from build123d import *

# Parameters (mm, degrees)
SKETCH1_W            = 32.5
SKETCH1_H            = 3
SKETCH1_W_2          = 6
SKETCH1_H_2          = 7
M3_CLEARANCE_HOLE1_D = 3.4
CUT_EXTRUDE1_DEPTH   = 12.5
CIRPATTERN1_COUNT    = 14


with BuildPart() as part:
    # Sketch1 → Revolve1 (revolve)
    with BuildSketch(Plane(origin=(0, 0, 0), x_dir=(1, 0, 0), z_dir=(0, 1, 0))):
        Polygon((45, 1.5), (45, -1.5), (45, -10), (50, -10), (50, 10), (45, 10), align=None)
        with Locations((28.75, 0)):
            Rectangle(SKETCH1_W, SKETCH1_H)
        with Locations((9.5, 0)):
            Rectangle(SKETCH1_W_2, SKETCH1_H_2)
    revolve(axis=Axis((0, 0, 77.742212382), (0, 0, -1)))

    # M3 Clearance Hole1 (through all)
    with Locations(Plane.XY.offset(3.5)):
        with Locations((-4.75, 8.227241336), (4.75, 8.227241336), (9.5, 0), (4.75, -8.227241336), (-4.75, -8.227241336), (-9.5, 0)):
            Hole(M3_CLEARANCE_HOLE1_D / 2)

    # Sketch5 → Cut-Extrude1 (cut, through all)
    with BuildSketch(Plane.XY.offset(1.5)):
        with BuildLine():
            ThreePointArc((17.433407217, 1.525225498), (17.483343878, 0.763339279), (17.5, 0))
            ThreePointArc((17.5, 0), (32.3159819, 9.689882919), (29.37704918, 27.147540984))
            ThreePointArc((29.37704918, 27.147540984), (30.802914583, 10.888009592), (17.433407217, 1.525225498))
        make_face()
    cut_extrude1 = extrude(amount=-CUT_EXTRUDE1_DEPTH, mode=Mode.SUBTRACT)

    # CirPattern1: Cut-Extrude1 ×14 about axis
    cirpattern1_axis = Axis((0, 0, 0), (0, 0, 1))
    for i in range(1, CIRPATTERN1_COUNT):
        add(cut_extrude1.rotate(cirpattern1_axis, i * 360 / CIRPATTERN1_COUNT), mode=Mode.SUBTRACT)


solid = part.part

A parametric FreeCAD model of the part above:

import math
import FreeCAD as App
import Part
import Sketcher
from FreeCAD import Vector

doc = App.newDocument("Part")
params = doc.addObject("Spreadsheet::Sheet", "Params")
for row, (alias, value) in enumerate([
    ("sketch1_width", "5 mm"),
    ("sketch1_width2", "6 mm"),
    ("sketch1_height", "20 mm"),
    ("sketch1_height2", "2 mm"),
    ("sketch1_height3", "7 mm"),
    ("revolution_angle", "360 deg"),
    ("sketch2_diameter", "3.4 mm"),
    ("hole_diameter", "3.4 mm"),
    ("sketch3_radius", "17.5 mm"),
], start=1):
    params.set(f"A{row}", alias)
    params.set(f"B{row}", "=" + value)
    params.setAlias(f"B{row}", alias)

body = doc.addObject("PartDesign::Body", "Body")

sketch1 = doc.addObject("Sketcher::SketchObject", "Sketch")
body.addObject(sketch1)
sketch1.AttachmentSupport = (doc.XZ_Plane, [""])
sketch1.MapMode = "FlatFace"
sketch1.addGeometry(Part.LineSegment(Vector(45, 10, 0), Vector(50, 10, 0)), False)
sketch1.addGeometry(Part.LineSegment(Vector(50, 10, 0), Vector(50, -10, 0)), False)
sketch1.addGeometry(Part.LineSegment(Vector(50, -10, 0), Vector(45, -10, 0)), False)
sketch1.addGeometry(Part.LineSegment(Vector(45, -10, 0), Vector(45, -1.5, 0)), False)
sketch1.addGeometry(Part.LineSegment(Vector(45, -1.5, 0), Vector(12.5, -1.5, 0)), False)
sketch1.addGeometry(Part.LineSegment(Vector(12.5, -1.5, 0), Vector(12.5, -3.5, 0)), False)
sketch1.addGeometry(Part.LineSegment(Vector(12.5, -3.5, 0), Vector(6.5, -3.5, 0)), False)
sketch1.addGeometry(Part.LineSegment(Vector(6.5, -3.5, 0), Vector(6.5, 3.5, 0)), False)
sketch1.addGeometry(Part.LineSegment(Vector(6.5, 3.5, 0), Vector(12.5, 3.5, 0)), False)
sketch1.addGeometry(Part.LineSegment(Vector(12.5, 3.5, 0), Vector(12.5, 1.5, 0)), False)
sketch1.addGeometry(Part.LineSegment(Vector(12.5, 1.5, 0), Vector(45, 1.5, 0)), False)
sketch1.addGeometry(Part.LineSegment(Vector(45, 1.5, 0), Vector(45, 10, 0)), False)
sketch1.addConstraint(Sketcher.Constraint("Coincident", 0, 2, 1, 1))
sketch1.addConstraint(Sketcher.Constraint("Coincident", 1, 2, 2, 1))
sketch1.addConstraint(Sketcher.Constraint("Coincident", 2, 2, 3, 1))
sketch1.addConstraint(Sketcher.Constraint("Coincident", 3, 2, 4, 1))
sketch1.addConstraint(Sketcher.Constraint("Coincident", 4, 2, 5, 1))
sketch1.addConstraint(Sketcher.Constraint("Coincident", 5, 2, 6, 1))
sketch1.addConstraint(Sketcher.Constraint("Coincident", 6, 2, 7, 1))
sketch1.addConstraint(Sketcher.Constraint("Coincident", 7, 2, 8, 1))
sketch1.addConstraint(Sketcher.Constraint("Coincident", 8, 2, 9, 1))
sketch1.addConstraint(Sketcher.Constraint("Coincident", 9, 2, 10, 1))
sketch1.addConstraint(Sketcher.Constraint("Coincident", 10, 2, 11, 1))
sketch1.addConstraint(Sketcher.Constraint("Coincident", 11, 2, 0, 1))
sketch1.addConstraint(Sketcher.Constraint("Horizontal", 0))
sketch1.addConstraint(Sketcher.Constraint("Vertical", 1))
sketch1.addConstraint(Sketcher.Constraint("Horizontal", 2))
sketch1.addConstraint(Sketcher.Constraint("Vertical", 3))
sketch1.addConstraint(Sketcher.Constraint("Horizontal", 4))
sketch1.addConstraint(Sketcher.Constraint("Vertical", 5))
sketch1.addConstraint(Sketcher.Constraint("Horizontal", 6))
sketch1.addConstraint(Sketcher.Constraint("Vertical", 7))
sketch1.addConstraint(Sketcher.Constraint("Horizontal", 8))
sketch1.addConstraint(Sketcher.Constraint("Vertical", 9))
sketch1.addConstraint(Sketcher.Constraint("Horizontal", 10))
sketch1.addConstraint(Sketcher.Constraint("Vertical", 11))
sketch1.addConstraint(Sketcher.Constraint("Symmetric", 5, 2, 8, 2, -1))
sketch1.addConstraint(Sketcher.Constraint("Symmetric", 3, 2, 10, 2, -1))
sketch1.addConstraint(Sketcher.Constraint("Equal", 3, 11))
sketch1.addConstraint(Sketcher.Constraint("DistanceX", 0, 1, 0, 2, 5.0))
sketch1.addConstraint(Sketcher.Constraint("DistanceX", 6, 2, 6, 1, 6.0))
sketch1.addConstraint(Sketcher.Constraint("DistanceY", 1, 2, 1, 1, 20.0))
sketch1.addConstraint(Sketcher.Constraint("DistanceY", 5, 2, 5, 1, 2.0))
sketch1.addConstraint(Sketcher.Constraint("DistanceY", 7, 1, 7, 2, 7.0))
sketch1.addConstraint(Sketcher.Constraint("DistanceX", 4, 2, 4, 1, 32.5))
sketch1.addConstraint(Sketcher.Constraint("DistanceX", -1, 1, 0, 2, 50.0))
sketch1.setExpression("Constraints[27]", "Params.sketch1_width")
sketch1.setExpression("Constraints[28]", "Params.sketch1_width2")
sketch1.setExpression("Constraints[29]", "Params.sketch1_height")
sketch1.setExpression("Constraints[30]", "Params.sketch1_height2")
sketch1.setExpression("Constraints[31]", "Params.sketch1_height3")
revolution = doc.addObject("PartDesign::Revolution", "Revolution")
body.addObject(revolution)
revolution.Profile = sketch1
revolution.ReferenceAxis = (sketch1, ["V_Axis"])
revolution.setExpression("Angle", "Params.revolution_angle")

sketch2 = doc.addObject("Sketcher::SketchObject", "Sketch001")
body.addObject(sketch2)
sketch2.AttachmentSupport = (doc.XY_Plane, [""])
sketch2.MapMode = "FlatFace"
sketch2.AttachmentOffset = App.Placement(Vector(0, 0, 3.5), App.Rotation())
sketch2.addGeometry(Part.Circle(Vector(-4.8, 8.2, 0), Vector(0, 0, 1), 1.7), False)
sketch2.addGeometry(Part.Circle(Vector(4.8, 8.2, 0), Vector(0, 0, 1), 1.7), False)
sketch2.addGeometry(Part.Circle(Vector(9.5, 0, 0), Vector(0, 0, 1), 1.7), False)
sketch2.addGeometry(Part.Circle(Vector(4.8, -8.2, 0), Vector(0, 0, 1), 1.7), False)
sketch2.addGeometry(Part.Circle(Vector(-4.8, -8.2, 0), Vector(0, 0, 1), 1.7), False)
sketch2.addGeometry(Part.Circle(Vector(-9.5, 0, 0), Vector(0, 0, 1), 1.7), False)
sketch2.addConstraint(Sketcher.Constraint("Equal", 0, 1))
sketch2.addConstraint(Sketcher.Constraint("Equal", 1, 2))
sketch2.addConstraint(Sketcher.Constraint("Equal", 2, 3))
sketch2.addConstraint(Sketcher.Constraint("Equal", 3, 4))
sketch2.addConstraint(Sketcher.Constraint("Equal", 4, 5))
sketch2.addConstraint(Sketcher.Constraint("Symmetric", 0, 3, 3, 3, -1, 1))
sketch2.addConstraint(Sketcher.Constraint("Symmetric", 1, 3, 4, 3, -1, 1))
sketch2.addConstraint(Sketcher.Constraint("Symmetric", 2, 3, 5, 3, -1, 1))
sketch2.addConstraint(Sketcher.Constraint("Symmetric", 0, 3, 1, 3, -2))
sketch2.addConstraint(Sketcher.Constraint("PointOnObject", 2, 3, -1))
sketch2.addConstraint(Sketcher.Constraint("Diameter", 0, 3.4))
sketch2.addConstraint(Sketcher.Constraint("DistanceX", 5, 3, 2, 3, 19.0))
sketch2.addConstraint(Sketcher.Constraint("DistanceX", 0, 3, 1, 3, 9.5))
sketch2.addConstraint(Sketcher.Constraint("DistanceY", -1, 1, 0, 3, 8.227241))
sketch2.setExpression("Constraints[10]", "Params.sketch2_diameter")
doc.recompute()
hole = doc.addObject("PartDesign::Hole", "Hole")
body.addObject(hole)
hole.Profile = sketch2
hole.ThreadType = "None"
hole.setExpression("Diameter", "Params.hole_diameter")
hole.DepthType = "ThroughAll"

sketch3 = doc.addObject("Sketcher::SketchObject", "Sketch002")
body.addObject(sketch3)
sketch3.AttachmentSupport = (doc.XY_Plane, [""])
sketch3.MapMode = "FlatFace"
sketch3.AttachmentOffset = App.Placement(Vector(0, 0, 1.5), App.Rotation())
sketch3.addGeometry(Part.ArcOfCircle(Part.Circle(Vector(0, 0, 0), Vector(0, 0, 1), 17.5), math.radians(0), math.radians(5)), False)
sketch3.addGeometry(Part.ArcOfCircle(Part.Circle(Vector(17.5, 16.2, 0), Vector(0, 0, 1), 16.2), math.radians(-90), math.radians(43)), False)
sketch3.addGeometry(Part.ArcOfCircle(Part.Circle(Vector(16, 17.8, 0), Vector(0, 0, 1), 16.3), math.radians(-85), math.radians(35)), False)
sketch3.addConstraint(Sketcher.Constraint("Coincident", 0, 1, 1, 1))
sketch3.addConstraint(Sketcher.Constraint("Coincident", 1, 2, 2, 2))
sketch3.addConstraint(Sketcher.Constraint("Coincident", 2, 1, 0, 2))
sketch3.addConstraint(Sketcher.Constraint("Coincident", 0, 3, -1, 1))
sketch3.addConstraint(Sketcher.Constraint("PointOnObject", 0, 1, -1))
sketch3.addConstraint(Sketcher.Constraint("Vertical", 1, 3, 0, 1))
sketch3.addConstraint(Sketcher.Constraint("Radius", 0, 17.5))
sketch3.addConstraint(Sketcher.Constraint("Radius", 2, 16.32001))
sketch3.addConstraint(Sketcher.Constraint("Radius", 1, 16.171875))
sketch3.addConstraint(Sketcher.Constraint("DistanceX", -1, 1, 1, 2, 29.377049))
sketch3.addConstraint(Sketcher.Constraint("DistanceY", 1, 3, 2, 3, 1.611258))
sketch3.setExpression("Constraints[6]", "Params.sketch3_radius")
pocket1 = doc.addObject("PartDesign::Pocket", "Pocket")
body.addObject(pocket1)
pocket1.Profile = sketch3
pocket1.Type = "ThroughAll"
doc.recompute()

polarpattern = doc.addObject("PartDesign::PolarPattern", "PolarPattern")
body.addObject(polarpattern)
polarpattern.Originals = [pocket1]
polarpattern.Axis = (doc.Z_Axis, [""])
polarpattern.Angle = 360
polarpattern.Occurrences = 14
body.Tip = polarpattern

doc.recompute()
